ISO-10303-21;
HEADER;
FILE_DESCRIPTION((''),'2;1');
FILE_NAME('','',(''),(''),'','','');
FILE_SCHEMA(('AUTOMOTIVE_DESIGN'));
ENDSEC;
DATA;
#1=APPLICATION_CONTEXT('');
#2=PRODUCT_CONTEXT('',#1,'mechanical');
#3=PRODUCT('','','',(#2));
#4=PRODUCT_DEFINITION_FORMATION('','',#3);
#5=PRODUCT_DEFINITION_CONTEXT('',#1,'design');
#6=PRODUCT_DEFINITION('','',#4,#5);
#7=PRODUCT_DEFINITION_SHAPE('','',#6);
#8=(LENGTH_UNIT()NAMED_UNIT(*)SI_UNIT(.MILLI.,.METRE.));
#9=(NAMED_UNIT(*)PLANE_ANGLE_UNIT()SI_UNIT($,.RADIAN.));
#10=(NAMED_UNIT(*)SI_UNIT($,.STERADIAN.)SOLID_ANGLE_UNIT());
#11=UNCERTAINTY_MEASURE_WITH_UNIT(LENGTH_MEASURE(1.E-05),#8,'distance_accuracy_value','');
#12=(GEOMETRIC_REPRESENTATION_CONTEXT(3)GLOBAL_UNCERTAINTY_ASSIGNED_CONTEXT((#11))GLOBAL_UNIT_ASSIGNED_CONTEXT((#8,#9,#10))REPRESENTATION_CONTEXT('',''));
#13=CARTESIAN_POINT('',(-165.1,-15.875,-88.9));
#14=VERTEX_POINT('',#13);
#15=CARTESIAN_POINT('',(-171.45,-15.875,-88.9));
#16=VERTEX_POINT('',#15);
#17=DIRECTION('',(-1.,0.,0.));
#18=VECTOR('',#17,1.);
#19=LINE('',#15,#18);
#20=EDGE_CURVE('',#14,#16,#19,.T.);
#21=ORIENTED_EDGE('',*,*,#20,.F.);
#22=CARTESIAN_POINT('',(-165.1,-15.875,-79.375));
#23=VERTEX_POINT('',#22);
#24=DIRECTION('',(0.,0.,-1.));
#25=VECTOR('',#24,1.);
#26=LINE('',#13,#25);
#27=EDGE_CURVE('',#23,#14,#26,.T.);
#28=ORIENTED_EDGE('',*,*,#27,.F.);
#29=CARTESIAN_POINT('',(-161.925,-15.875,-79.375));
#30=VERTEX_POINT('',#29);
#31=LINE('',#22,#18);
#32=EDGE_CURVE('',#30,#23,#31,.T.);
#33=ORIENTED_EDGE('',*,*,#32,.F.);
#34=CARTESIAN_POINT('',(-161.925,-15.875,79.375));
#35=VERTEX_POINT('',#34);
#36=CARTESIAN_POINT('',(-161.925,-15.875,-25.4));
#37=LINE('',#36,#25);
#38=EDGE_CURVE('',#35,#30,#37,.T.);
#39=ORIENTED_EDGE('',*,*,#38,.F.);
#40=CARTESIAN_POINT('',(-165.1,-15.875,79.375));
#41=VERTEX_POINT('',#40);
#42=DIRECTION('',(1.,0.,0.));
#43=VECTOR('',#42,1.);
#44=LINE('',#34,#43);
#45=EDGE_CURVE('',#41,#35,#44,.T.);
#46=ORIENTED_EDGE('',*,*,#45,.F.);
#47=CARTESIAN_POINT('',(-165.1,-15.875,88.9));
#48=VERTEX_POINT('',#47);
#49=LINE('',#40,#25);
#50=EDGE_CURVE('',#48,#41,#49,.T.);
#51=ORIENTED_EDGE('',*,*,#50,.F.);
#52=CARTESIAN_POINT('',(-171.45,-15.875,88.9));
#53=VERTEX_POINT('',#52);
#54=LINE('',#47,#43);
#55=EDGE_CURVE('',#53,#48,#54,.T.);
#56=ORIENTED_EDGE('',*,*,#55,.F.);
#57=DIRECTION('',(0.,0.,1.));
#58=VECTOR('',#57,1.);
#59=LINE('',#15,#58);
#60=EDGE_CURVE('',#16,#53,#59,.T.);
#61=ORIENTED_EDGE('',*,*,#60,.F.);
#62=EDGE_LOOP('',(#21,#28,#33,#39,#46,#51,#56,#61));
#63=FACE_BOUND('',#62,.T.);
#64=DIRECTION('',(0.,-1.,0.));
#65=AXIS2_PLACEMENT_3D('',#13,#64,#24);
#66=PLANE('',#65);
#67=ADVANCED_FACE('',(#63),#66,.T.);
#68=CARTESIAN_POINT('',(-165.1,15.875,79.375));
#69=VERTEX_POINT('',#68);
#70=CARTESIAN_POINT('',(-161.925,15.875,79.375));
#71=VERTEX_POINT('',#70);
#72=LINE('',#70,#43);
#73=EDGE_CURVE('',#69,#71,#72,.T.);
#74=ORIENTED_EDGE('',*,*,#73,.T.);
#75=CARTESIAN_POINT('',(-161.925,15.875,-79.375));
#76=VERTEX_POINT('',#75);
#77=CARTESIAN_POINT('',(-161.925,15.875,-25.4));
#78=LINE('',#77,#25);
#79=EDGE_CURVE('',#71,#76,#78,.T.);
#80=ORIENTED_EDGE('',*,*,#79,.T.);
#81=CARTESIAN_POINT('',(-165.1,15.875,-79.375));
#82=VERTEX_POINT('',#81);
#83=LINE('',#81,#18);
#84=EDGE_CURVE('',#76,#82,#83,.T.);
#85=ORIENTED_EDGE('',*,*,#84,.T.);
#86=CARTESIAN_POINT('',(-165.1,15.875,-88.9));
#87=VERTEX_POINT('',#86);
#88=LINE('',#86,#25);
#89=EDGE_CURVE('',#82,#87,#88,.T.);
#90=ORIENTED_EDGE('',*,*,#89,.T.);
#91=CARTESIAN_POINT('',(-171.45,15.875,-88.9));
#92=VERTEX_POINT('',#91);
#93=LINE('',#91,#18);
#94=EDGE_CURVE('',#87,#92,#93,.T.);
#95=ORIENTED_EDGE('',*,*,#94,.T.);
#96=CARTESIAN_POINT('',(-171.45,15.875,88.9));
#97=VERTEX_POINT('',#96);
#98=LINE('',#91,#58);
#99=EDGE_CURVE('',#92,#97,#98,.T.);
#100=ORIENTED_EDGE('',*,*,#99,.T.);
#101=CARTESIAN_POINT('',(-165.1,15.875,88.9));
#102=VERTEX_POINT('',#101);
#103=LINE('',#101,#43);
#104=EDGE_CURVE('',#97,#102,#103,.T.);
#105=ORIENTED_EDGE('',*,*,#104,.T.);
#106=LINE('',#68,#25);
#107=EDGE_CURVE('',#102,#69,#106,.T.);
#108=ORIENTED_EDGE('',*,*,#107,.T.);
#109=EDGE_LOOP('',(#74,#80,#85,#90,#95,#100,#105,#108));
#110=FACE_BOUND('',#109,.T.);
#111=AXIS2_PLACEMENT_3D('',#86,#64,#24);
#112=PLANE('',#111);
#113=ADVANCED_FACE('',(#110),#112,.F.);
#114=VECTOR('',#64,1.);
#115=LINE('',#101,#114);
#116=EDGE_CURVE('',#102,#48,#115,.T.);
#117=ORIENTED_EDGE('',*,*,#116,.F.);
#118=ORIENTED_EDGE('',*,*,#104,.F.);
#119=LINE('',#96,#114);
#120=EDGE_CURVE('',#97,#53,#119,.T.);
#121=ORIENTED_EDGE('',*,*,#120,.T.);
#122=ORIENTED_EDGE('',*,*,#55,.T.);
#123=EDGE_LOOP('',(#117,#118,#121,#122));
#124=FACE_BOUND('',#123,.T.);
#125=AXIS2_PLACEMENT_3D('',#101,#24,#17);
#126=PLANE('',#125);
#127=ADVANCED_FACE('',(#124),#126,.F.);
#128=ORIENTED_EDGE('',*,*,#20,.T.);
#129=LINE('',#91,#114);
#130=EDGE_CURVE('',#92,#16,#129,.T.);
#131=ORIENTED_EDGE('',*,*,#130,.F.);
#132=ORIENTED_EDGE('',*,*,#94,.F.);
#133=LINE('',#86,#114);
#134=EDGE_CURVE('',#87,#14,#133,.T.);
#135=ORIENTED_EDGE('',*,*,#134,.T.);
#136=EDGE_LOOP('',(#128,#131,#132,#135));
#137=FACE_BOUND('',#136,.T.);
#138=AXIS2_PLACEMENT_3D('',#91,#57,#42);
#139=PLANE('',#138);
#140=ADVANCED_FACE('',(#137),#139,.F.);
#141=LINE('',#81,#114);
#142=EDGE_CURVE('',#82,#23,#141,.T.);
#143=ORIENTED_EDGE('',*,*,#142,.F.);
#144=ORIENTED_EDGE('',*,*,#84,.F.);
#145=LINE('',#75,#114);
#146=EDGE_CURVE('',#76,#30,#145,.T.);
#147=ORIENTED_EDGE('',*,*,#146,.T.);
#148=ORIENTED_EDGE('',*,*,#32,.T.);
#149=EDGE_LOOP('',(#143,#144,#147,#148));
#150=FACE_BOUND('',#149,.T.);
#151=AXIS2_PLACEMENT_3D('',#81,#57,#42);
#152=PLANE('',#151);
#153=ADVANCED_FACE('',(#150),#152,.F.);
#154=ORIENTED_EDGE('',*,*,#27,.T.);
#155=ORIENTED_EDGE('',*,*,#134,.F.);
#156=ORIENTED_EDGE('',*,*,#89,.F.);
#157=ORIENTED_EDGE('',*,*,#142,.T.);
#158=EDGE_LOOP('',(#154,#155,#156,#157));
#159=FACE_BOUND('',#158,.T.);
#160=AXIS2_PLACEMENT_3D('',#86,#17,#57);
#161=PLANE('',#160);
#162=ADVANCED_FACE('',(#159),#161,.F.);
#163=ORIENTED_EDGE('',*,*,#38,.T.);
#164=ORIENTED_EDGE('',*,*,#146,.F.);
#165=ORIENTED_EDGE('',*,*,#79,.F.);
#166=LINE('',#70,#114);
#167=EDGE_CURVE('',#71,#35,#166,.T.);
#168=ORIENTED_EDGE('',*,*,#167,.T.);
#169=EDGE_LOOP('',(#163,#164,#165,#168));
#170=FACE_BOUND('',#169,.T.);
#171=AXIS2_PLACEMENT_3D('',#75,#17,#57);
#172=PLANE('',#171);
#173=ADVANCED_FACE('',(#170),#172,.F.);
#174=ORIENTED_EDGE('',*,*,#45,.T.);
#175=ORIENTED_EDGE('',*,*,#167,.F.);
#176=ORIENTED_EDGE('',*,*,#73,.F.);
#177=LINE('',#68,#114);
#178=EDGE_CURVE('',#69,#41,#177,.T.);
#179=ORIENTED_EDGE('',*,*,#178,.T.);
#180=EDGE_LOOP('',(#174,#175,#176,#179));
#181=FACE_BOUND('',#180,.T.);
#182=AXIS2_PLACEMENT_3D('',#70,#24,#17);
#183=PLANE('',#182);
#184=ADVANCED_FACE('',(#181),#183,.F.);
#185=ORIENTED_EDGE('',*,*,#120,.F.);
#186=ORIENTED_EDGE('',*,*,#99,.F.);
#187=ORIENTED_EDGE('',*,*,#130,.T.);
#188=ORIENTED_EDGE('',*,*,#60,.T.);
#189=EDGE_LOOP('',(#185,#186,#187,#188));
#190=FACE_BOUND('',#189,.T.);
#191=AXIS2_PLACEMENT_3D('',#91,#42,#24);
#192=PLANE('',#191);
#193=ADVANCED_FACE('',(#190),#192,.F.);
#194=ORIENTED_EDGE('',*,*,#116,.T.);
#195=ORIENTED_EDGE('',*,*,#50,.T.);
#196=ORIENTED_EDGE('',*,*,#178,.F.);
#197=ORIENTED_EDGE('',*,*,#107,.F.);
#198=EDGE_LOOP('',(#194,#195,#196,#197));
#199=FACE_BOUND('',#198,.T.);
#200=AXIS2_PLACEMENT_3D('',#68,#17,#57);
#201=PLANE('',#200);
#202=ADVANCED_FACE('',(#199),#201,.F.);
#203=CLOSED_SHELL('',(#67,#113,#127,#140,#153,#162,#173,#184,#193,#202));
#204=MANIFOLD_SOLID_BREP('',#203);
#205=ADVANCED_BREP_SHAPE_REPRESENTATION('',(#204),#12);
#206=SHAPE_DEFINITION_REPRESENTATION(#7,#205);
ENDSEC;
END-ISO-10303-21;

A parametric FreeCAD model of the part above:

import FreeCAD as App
import Part
import Sketcher
from FreeCAD import Vector
Q = App.Units.Quantity


def add_polygon(sketch, points):
    """Adds a closed chain of lines whose ends are joined by coincident constraints."""
    first, n = sketch.GeometryCount, len(points)
    for a, b in zip(points, points[1:] + points[:1]):
        sketch.addGeometry(Part.LineSegment(App.Vector(*a, 0), App.Vector(*b, 0)), False)
    for i in range(n):
        sketch.addConstraint(Sketcher.Constraint("Coincident", first + i, 2, first + (i + 1) % n, 1))

doc = App.newDocument("Part")
body = doc.addObject("PartDesign::Body", "Body")

sketch1 = body.newObject("Sketcher::SketchObject", "Sketch")
sketch1.AttachmentSupport = (doc.getObject("XZ_Plane"), [""])
sketch1.MapMode = "FlatFace"
add_polygon(sketch1, [(-171.4, -88.9), (-171.4, 88.9), (-165.1, 88.9), (-165.1, 79.4), (-161.9, 79.4), (-161.9, -79.4), (-165.1, -79.4), (-165.1, -88.9)])
sketch1.addConstraint([
    Sketcher.Constraint("Vertical", 0),
    Sketcher.Constraint("Horizontal", 1),
    Sketcher.Constraint("Vertical", 2),
    Sketcher.Constraint("Horizontal", 3),
    Sketcher.Constraint("Vertical", 4),
    Sketcher.Constraint("Horizontal", 5),
    Sketcher.Constraint("Vertical", 6),
    Sketcher.Constraint("Horizontal", 7),
    Sketcher.Constraint("Symmetric", 2, 2, 5, 2, -1),
    Sketcher.Constraint("Equal", 2, 6),
    Sketcher.Constraint("DistanceY", 0, 1, 0, 2, Q("7 in")),
    Sketcher.Constraint("DistanceX", 1, 1, 1, 2, Q("0.25 in")),
    Sketcher.Constraint("DistanceY", 4, 2, 4, 1, Q("6.25 in")),
    Sketcher.Constraint("DistanceX", 1, 2, -1, 1, Q("6.5 in")),
    Sketcher.Constraint("DistanceX", 3, 1, 3, 2, Q("0.125 in")),
])
pad1 = body.newObject("PartDesign::Pad", "Pad")
pad1.Profile = sketch1
pad1.Type = "TwoLengths"
pad1.Length = Q("0.625 in")
pad1.Length2 = Q("0.625 in")
pad1.Reversed = True

doc.recompute()
